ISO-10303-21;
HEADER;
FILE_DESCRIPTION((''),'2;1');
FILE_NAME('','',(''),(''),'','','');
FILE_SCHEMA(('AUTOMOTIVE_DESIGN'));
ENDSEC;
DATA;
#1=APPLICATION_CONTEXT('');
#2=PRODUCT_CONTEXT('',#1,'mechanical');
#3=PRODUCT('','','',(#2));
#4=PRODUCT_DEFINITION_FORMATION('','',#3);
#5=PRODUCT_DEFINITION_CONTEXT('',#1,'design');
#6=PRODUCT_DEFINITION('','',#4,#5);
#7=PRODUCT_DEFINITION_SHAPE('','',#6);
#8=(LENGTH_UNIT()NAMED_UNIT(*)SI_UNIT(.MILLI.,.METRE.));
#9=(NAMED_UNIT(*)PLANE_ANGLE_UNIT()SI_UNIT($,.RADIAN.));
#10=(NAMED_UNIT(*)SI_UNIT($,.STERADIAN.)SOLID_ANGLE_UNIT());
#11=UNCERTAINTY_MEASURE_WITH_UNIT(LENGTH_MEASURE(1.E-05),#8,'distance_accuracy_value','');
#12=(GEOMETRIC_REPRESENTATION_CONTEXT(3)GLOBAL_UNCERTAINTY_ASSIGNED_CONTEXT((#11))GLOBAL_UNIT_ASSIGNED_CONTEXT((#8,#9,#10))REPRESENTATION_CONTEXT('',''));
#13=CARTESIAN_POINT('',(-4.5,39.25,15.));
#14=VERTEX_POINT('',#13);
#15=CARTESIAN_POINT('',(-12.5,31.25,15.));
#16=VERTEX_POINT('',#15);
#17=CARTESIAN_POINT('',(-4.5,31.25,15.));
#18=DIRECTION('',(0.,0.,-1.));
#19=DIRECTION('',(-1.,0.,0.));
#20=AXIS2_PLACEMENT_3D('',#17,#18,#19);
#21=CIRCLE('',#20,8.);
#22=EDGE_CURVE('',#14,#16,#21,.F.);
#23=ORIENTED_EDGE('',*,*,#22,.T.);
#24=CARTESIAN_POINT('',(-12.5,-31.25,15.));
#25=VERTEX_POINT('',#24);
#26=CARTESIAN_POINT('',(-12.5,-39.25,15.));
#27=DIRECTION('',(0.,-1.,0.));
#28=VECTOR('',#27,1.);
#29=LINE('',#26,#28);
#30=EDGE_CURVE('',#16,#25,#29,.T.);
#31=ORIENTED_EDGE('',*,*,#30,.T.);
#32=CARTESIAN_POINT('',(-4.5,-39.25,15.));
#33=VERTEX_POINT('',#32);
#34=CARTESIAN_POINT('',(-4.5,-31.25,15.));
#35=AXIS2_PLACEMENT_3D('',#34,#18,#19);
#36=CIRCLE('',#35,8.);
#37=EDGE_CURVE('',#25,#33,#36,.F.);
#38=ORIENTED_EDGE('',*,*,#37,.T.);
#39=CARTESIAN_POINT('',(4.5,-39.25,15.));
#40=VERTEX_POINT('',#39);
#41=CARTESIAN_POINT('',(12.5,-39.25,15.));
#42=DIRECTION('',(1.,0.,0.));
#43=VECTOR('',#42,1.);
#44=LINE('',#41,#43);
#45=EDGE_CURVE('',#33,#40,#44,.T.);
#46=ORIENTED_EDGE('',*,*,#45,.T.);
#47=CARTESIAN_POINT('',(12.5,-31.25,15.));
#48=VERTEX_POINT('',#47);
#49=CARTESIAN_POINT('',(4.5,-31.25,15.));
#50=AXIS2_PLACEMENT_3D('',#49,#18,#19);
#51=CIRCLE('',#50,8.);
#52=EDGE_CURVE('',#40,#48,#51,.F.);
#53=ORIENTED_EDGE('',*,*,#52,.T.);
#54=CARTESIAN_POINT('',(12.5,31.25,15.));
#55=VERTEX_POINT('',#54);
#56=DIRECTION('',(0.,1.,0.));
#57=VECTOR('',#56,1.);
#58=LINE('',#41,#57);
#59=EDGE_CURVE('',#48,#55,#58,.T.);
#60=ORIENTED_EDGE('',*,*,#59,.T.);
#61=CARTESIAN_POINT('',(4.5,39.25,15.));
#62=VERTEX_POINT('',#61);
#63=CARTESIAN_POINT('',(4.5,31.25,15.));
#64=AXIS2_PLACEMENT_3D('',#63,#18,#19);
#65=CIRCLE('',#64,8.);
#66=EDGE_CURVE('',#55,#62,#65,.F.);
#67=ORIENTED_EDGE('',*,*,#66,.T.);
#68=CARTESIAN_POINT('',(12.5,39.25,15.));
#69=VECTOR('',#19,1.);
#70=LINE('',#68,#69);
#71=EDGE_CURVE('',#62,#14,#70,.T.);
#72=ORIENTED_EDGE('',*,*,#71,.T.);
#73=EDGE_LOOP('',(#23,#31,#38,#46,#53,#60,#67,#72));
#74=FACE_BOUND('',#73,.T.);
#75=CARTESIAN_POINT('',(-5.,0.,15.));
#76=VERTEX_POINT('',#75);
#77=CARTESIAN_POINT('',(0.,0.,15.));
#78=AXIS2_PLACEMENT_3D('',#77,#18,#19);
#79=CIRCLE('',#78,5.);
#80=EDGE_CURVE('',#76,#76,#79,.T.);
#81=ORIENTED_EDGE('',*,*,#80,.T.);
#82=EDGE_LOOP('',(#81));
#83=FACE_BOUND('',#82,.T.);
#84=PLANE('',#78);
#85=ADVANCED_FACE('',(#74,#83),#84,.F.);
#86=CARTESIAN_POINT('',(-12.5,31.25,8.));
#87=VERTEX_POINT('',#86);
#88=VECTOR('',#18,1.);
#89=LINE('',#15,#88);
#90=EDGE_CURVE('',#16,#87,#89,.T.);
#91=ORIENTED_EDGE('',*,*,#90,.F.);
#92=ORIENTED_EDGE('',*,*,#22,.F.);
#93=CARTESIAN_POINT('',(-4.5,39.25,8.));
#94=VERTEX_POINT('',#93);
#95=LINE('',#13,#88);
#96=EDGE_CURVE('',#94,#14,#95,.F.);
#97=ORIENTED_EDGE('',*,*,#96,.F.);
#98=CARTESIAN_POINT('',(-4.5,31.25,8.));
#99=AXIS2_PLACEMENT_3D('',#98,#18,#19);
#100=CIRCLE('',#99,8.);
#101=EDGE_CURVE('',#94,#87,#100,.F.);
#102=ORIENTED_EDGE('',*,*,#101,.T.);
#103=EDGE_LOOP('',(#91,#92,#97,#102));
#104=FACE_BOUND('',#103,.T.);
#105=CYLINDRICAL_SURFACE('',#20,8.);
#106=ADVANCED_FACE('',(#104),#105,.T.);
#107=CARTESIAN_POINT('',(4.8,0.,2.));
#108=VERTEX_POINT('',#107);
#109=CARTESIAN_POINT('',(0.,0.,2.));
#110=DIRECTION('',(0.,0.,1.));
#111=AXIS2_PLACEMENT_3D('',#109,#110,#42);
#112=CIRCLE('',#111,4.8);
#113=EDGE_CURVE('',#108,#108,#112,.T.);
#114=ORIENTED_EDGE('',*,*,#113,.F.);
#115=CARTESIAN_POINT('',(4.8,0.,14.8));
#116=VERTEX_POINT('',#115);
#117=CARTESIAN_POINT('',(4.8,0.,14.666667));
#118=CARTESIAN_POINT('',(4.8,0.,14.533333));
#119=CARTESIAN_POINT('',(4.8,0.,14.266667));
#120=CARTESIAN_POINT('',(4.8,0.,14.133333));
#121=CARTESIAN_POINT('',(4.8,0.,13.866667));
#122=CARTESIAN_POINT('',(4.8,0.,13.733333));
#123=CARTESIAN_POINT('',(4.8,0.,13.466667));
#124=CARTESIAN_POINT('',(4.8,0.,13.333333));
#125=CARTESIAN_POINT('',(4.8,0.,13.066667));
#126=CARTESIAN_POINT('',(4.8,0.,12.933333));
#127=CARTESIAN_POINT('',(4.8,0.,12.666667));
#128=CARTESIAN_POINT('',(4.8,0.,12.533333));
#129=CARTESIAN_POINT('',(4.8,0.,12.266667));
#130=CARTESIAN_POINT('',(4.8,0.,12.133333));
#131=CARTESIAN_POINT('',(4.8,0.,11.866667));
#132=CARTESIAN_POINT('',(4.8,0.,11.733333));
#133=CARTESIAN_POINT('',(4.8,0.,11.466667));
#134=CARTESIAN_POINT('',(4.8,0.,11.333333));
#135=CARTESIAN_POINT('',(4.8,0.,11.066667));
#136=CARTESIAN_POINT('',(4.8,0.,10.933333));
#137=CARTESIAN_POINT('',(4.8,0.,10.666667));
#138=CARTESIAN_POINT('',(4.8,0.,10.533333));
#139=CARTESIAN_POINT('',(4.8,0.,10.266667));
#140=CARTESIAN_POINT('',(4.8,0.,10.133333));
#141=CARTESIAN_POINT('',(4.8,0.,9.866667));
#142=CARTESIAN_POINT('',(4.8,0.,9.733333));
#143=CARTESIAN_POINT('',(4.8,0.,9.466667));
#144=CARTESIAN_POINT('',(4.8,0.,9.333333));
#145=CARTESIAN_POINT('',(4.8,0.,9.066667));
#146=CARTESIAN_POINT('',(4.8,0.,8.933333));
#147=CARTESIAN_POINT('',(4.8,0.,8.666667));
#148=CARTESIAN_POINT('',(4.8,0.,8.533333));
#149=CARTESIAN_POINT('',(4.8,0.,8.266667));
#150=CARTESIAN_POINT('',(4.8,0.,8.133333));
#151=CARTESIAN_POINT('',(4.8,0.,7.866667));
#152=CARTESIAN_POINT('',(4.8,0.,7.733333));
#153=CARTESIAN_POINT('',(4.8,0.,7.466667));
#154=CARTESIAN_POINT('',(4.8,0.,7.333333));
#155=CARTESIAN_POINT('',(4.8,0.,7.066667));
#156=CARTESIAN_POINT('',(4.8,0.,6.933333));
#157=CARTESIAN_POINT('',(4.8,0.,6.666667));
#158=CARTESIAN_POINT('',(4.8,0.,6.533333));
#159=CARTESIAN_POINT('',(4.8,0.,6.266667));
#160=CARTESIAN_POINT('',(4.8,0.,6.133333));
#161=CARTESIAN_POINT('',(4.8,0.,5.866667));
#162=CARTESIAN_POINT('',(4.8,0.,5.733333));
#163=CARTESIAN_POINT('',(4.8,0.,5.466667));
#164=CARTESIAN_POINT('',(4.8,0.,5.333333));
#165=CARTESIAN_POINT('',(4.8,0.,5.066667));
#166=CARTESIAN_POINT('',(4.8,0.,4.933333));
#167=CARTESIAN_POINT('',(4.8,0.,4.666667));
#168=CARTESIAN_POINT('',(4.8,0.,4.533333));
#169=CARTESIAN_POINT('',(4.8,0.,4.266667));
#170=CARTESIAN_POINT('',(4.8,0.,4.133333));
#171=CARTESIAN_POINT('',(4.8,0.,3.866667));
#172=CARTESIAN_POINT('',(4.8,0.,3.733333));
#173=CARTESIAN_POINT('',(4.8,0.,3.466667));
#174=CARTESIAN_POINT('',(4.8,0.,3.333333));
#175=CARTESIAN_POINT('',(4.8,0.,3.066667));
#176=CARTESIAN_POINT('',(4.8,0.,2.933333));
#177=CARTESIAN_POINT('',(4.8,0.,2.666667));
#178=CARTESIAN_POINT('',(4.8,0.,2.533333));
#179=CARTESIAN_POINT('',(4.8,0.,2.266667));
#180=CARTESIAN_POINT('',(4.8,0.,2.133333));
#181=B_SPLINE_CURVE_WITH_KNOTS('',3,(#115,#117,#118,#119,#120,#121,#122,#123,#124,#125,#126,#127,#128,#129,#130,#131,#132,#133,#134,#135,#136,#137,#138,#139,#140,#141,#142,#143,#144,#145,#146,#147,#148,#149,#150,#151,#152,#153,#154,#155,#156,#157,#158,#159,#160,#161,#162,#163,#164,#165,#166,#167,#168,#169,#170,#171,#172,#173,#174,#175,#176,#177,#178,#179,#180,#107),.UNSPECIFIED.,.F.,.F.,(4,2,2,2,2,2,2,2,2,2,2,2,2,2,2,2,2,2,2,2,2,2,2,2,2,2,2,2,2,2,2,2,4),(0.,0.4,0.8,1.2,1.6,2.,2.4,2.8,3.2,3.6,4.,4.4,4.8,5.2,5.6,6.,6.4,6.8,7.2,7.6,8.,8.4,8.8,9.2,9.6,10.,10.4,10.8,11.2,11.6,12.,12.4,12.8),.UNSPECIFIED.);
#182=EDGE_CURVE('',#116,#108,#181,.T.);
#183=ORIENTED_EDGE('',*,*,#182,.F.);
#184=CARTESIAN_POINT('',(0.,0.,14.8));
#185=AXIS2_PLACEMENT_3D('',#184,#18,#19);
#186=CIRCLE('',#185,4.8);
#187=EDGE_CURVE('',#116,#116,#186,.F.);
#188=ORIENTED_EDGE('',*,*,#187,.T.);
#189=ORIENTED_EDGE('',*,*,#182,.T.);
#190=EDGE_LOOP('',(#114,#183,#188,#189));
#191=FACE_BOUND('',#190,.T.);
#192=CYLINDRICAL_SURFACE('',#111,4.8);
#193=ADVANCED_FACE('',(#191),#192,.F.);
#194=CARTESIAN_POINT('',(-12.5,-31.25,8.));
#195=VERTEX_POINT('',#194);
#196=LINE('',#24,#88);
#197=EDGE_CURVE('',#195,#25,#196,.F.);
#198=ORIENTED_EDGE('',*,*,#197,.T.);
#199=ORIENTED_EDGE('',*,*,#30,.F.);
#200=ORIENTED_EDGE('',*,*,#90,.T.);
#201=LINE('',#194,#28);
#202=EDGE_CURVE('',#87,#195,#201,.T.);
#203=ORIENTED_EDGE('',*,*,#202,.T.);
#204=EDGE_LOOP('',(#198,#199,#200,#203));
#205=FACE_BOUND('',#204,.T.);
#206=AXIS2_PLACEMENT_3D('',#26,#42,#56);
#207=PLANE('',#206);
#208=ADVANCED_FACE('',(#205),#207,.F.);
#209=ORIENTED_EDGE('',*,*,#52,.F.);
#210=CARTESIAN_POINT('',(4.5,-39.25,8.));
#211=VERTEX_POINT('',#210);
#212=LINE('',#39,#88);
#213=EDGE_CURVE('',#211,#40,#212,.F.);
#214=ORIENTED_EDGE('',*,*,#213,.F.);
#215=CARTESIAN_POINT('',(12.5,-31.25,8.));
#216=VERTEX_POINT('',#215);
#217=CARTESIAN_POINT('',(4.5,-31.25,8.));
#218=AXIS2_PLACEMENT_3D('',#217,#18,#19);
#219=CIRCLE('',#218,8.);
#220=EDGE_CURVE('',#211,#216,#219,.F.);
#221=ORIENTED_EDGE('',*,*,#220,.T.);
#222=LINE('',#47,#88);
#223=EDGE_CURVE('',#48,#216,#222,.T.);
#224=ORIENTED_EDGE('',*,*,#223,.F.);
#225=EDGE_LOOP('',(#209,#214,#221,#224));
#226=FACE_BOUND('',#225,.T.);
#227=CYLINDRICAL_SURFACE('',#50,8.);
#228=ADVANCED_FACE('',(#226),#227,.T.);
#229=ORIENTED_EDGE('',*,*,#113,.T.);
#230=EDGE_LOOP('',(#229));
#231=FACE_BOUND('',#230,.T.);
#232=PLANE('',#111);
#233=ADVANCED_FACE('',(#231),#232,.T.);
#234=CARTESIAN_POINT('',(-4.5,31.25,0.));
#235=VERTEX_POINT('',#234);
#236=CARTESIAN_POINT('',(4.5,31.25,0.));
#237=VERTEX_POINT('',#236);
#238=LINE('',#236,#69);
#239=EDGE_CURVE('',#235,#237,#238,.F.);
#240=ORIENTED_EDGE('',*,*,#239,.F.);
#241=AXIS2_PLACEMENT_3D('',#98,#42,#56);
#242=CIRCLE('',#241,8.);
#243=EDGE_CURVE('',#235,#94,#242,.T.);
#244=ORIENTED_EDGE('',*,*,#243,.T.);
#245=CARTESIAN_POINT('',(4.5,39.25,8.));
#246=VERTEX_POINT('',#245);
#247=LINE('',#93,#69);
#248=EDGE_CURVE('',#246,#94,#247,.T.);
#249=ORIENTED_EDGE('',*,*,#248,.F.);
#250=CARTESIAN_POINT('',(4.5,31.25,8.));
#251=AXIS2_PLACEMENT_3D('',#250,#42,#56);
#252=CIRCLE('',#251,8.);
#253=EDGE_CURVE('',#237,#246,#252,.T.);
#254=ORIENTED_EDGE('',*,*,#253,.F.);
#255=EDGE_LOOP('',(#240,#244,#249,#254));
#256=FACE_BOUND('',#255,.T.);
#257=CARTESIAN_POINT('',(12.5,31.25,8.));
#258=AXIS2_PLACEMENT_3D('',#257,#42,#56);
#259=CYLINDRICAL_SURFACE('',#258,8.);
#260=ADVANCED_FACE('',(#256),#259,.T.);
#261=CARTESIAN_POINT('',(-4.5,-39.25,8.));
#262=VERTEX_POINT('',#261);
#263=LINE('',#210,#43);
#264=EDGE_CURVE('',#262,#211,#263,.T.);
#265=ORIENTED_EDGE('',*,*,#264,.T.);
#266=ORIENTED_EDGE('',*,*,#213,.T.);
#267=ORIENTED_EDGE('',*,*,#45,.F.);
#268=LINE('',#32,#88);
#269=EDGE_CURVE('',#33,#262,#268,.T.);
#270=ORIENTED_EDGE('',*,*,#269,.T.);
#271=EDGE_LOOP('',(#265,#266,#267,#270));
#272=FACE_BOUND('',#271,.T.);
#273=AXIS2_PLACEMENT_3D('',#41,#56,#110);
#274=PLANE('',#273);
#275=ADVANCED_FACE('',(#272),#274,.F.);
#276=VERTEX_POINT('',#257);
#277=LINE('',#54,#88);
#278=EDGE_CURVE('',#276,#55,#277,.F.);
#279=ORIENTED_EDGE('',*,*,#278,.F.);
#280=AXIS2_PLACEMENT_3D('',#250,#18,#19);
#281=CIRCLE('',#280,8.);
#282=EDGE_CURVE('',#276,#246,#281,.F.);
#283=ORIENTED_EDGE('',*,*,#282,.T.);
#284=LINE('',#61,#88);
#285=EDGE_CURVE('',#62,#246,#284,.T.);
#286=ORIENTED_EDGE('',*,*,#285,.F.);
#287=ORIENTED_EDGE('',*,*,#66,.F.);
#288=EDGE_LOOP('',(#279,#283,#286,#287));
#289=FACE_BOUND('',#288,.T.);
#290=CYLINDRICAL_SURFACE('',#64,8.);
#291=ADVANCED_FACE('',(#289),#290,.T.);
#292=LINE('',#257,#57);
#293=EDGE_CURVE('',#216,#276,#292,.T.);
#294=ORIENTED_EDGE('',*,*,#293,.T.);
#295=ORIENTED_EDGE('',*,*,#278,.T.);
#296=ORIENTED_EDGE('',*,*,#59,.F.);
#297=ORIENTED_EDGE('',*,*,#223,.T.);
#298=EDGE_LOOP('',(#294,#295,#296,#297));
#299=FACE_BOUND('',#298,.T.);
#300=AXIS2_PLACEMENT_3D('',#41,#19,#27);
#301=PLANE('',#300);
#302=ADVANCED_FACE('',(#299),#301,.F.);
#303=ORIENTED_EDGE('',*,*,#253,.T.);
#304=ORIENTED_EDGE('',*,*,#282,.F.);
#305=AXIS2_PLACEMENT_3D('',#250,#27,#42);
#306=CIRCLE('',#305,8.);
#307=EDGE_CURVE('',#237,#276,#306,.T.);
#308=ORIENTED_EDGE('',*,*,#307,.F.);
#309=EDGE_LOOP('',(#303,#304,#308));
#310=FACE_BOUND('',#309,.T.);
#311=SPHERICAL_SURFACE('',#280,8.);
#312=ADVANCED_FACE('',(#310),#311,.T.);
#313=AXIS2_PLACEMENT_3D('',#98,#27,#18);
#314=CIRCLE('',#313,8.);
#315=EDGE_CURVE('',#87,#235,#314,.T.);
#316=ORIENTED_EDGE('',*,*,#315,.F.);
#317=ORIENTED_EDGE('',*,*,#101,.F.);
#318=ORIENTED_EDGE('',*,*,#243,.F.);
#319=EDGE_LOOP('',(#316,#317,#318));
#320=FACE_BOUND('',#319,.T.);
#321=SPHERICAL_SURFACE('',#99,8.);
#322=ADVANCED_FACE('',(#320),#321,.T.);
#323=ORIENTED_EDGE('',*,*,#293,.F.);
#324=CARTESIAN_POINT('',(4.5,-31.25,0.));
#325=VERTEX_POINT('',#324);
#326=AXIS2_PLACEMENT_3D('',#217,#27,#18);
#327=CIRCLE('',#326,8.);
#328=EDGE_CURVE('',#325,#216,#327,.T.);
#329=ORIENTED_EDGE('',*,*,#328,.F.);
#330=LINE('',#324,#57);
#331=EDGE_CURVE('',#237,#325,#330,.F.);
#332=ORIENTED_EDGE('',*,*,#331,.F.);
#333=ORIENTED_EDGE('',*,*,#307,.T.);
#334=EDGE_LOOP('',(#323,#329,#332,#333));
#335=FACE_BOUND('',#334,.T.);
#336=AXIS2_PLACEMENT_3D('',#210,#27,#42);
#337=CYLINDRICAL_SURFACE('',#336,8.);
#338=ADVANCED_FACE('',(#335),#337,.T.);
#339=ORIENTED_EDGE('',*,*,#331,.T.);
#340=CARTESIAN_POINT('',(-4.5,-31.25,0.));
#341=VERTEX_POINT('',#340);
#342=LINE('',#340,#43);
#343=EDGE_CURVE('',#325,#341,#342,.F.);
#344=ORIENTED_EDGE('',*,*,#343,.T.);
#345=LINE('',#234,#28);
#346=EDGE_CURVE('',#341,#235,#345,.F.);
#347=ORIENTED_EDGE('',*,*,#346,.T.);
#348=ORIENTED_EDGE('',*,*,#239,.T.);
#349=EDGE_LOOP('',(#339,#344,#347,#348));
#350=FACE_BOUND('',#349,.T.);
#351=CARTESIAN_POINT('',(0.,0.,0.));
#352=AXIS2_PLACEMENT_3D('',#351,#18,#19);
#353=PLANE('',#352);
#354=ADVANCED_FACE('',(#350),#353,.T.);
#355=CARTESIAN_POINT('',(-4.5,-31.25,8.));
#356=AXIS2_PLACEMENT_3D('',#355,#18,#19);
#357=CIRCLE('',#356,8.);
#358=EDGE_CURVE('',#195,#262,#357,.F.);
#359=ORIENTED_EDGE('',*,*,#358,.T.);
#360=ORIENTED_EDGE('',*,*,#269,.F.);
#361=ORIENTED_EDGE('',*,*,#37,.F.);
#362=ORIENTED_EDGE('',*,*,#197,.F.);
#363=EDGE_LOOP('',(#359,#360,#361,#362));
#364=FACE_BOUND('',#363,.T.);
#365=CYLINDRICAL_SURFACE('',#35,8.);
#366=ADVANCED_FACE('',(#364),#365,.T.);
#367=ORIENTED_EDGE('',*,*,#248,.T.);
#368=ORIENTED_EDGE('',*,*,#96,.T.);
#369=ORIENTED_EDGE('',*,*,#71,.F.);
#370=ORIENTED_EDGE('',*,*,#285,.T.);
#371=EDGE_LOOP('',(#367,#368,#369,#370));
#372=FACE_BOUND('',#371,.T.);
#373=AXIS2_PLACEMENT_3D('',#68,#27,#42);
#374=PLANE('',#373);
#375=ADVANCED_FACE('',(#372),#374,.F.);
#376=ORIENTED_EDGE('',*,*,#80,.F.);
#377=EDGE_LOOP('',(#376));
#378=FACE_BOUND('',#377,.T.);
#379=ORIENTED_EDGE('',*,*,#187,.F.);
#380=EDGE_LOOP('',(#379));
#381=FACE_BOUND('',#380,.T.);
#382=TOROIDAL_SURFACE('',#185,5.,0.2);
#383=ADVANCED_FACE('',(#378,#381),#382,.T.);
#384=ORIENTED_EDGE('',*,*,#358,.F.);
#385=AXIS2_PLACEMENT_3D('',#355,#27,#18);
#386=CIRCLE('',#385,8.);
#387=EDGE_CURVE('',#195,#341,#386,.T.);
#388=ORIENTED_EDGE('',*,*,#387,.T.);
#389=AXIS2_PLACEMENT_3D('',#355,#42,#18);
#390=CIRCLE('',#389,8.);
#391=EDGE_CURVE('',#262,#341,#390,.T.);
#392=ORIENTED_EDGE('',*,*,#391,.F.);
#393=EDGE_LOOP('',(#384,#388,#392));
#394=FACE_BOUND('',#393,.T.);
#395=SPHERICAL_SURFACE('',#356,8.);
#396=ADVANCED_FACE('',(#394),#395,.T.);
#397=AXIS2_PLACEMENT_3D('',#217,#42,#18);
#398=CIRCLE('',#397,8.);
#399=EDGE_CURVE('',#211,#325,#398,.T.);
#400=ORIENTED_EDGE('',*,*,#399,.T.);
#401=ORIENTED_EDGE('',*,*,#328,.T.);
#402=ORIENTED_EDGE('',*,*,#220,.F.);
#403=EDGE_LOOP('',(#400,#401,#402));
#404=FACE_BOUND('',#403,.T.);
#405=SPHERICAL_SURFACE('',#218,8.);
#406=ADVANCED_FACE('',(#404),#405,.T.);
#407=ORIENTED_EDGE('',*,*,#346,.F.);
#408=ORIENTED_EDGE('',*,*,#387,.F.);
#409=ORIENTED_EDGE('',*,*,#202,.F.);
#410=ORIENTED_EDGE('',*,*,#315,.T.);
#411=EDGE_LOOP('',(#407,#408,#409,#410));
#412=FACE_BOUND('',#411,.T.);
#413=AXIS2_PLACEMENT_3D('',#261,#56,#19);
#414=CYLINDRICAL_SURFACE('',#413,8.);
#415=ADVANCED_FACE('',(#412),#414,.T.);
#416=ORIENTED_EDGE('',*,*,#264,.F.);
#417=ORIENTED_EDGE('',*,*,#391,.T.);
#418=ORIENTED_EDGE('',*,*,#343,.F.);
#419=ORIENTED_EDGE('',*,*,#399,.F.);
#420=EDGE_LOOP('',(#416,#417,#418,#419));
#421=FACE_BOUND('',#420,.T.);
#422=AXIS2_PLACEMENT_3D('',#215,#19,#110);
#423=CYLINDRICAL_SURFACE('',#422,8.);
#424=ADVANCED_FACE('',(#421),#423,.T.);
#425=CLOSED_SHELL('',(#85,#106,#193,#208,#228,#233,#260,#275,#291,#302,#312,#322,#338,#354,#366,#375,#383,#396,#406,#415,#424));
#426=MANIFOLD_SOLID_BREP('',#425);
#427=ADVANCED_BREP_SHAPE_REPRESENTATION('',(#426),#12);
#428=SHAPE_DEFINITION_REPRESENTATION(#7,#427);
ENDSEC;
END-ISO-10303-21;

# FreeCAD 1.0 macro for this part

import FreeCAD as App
import Part
import Sketcher

V = App.Vector
Q = App.Units.Quantity


def edges_at(feature, points):
    """Names of the edges that pass closest to the given points."""
    edges = feature.Shape.Edges
    near = lambda p: min(range(len(edges)), key=lambda i: edges[i].distToShape(Part.Vertex(*p))[0])
    return sorted({f"Edge{near(p) + 1}" for p in points})


def add_polygon(sketch, points):
    """Adds a closed chain of lines whose ends are joined by coincident constraints."""
    first, n = sketch.GeometryCount, len(points)
    for a, b in zip(points, points[1:] + points[:1]):
        sketch.addGeometry(Part.LineSegment(App.Vector(*a, 0), App.Vector(*b, 0)), False)
    for i in range(n):
        sketch.addConstraint(Sketcher.Constraint("Coincident", first + i, 2, first + (i + 1) % n, 1))

doc = App.newDocument("Part")
body = doc.addObject("PartDesign::Body", "Body")

sketch1 = body.newObject("Sketcher::SketchObject", "Sketch")
sketch1.AttachmentSupport = (doc.getObject("XY_Plane"), [""])
sketch1.MapMode = "FlatFace"
add_polygon(sketch1, [(-12.5, -39.25), (12.5, -39.25), (12.5, 39.25), (-12.5, 39.25)])
sketch1.addConstraint([
    Sketcher.Constraint("Horizontal", 0),
    Sketcher.Constraint("Vertical", 1),
    Sketcher.Constraint("Horizontal", 2),
    Sketcher.Constraint("Vertical", 3),
    Sketcher.Constraint("Symmetric", 0, 2, 2, 2, -1, 1),
    Sketcher.Constraint("DistanceX", 0, 1, 0, 2, Q("25 mm")),
    Sketcher.Constraint("DistanceY", 1, 1, 1, 2, Q("78.5 mm")),
])
pad1 = body.newObject("PartDesign::Pad", "Pad")
pad1.Profile = sketch1
pad1.Length = 15

sketch2 = body.newObject("Sketcher::SketchObject", "Sketch001")
sketch2.AttachmentSupport = (doc.getObject("XY_Plane"), [""])
sketch2.MapMode = "FlatFace"
sketch2.AttachmentOffset = App.Placement(V(0, 0, 15), App.Rotation())
sketch2.addGeometry(Part.Circle(V(0, 0, 0), V(0, 0, 1), 4.8), False)
sketch2.addConstraint([
    Sketcher.Constraint("Coincident", 0, 3, -1, 1),
    Sketcher.Constraint("Diameter", 0, Q("9.6 mm")),
])
pocket1 = body.newObject("PartDesign::Pocket", "Pocket")
pocket1.Profile = sketch2
pocket1.Length = 13
doc.recompute()

fillet = body.newObject("PartDesign::Fillet", "Fillet")
fillet.Base = (pocket1, edges_at(pocket1, [(-4.8, 0, 15)]))
fillet.Radius = 0.2
doc.recompute()

fillet2 = body.newObject("PartDesign::Fillet", "Fillet001")
fillet2.Base = (fillet, edges_at(fillet, [
    (12.5, 39.25, 7.5),
    (12.5, -39.25, 7.5),
    (-12.5, -39.25, 7.5),
    (-12.5, 39.25, 7.5),
]))
fillet2.Radius = 8
doc.recompute()

fillet3 = body.newObject("PartDesign::Fillet", "Fillet002")
fillet3.Base = (fillet2, edges_at(fillet2, [
    (0, -39.25, 0),
    (0, 39.25, 0),
    (12.5, 0, 0),
    (-12.5, 0, 0),
    (-10.157, 36.907, 0),
    (10.157, 36.907, 0),
    (10.157, -36.907, 0),
    (-10.157, -36.907, 0),
]))
fillet3.Radius = 8

doc.recompute()
